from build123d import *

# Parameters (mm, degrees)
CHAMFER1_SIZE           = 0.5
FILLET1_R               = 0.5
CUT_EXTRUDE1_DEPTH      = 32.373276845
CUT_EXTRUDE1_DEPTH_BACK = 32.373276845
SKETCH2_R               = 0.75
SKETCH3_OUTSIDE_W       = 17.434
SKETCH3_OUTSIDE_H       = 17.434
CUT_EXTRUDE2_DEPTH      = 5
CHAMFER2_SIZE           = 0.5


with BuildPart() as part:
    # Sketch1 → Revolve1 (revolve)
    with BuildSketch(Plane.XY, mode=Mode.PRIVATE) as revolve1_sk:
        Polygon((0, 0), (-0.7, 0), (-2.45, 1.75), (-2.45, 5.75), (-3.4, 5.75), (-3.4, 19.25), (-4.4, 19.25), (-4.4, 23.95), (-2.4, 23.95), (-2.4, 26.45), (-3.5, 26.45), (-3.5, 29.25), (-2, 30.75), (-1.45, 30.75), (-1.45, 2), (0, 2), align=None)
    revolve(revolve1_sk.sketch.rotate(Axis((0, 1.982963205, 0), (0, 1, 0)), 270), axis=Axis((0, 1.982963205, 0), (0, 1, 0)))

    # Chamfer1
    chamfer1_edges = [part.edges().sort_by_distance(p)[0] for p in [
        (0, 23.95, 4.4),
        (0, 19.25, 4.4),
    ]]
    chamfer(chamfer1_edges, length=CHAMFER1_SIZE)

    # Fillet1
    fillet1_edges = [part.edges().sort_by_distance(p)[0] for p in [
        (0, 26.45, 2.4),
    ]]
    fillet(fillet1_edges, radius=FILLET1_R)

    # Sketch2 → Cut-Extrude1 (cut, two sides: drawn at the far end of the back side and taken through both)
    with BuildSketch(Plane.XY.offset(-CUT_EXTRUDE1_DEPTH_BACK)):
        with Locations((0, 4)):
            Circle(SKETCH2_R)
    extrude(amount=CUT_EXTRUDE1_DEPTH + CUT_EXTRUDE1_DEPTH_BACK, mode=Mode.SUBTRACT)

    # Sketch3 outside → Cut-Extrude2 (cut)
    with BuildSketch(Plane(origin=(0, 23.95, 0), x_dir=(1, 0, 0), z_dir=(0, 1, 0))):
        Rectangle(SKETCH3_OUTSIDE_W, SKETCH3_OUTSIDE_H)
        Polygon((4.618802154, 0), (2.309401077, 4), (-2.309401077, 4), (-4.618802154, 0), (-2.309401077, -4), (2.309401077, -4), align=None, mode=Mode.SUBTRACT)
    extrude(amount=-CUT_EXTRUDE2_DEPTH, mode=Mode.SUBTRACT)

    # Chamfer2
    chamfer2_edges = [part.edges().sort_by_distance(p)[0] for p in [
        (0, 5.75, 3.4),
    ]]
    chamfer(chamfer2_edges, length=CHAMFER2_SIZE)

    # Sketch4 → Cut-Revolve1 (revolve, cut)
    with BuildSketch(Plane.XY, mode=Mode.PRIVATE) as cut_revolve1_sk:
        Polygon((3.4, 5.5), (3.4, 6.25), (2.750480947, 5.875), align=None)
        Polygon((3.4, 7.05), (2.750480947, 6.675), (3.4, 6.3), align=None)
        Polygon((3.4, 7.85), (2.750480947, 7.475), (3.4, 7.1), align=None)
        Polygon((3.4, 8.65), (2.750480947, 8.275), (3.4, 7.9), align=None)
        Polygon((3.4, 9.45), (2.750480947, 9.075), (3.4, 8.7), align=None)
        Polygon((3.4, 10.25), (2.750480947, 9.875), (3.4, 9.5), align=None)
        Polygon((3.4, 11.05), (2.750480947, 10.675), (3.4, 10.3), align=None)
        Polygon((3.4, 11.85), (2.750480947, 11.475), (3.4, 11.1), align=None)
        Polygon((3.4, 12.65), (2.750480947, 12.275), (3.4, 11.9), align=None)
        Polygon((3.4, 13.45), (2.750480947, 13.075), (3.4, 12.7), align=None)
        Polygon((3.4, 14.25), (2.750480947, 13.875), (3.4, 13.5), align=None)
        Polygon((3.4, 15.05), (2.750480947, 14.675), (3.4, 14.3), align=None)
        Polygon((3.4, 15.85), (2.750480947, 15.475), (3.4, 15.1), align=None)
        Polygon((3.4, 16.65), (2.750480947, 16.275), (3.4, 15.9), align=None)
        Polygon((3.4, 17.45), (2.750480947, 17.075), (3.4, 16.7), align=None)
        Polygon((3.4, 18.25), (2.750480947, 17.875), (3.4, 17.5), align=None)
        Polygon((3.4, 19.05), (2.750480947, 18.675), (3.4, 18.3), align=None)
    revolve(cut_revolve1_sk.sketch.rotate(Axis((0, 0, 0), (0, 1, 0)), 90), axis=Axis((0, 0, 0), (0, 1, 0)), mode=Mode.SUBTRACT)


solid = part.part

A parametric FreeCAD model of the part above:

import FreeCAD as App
import Part
import Sketcher
Q = App.Units.Quantity


def edges_at(feature, points):
    """Names of the edges that pass closest to the given points."""
    edges = feature.Shape.Edges
    near = lambda p: min(range(len(edges)), key=lambda i: edges[i].distToShape(Part.Vertex(*p))[0])
    return sorted({f"Edge{near(p) + 1}" for p in points})


def add_polygon(sketch, points):
    """Adds a closed chain of lines whose ends are joined by coincident constraints."""
    first, n = sketch.GeometryCount, len(points)
    for a, b in zip(points, points[1:] + points[:1]):
        sketch.addGeometry(Part.LineSegment(App.Vector(*a, 0), App.Vector(*b, 0)), False)
    for i in range(n):
        sketch.addConstraint(Sketcher.Constraint("Coincident", first + i, 2, first + (i + 1) % n, 1))

doc = App.newDocument("Part")
body = doc.addObject("PartDesign::Body", "Body")

# Sketch on XY plane
sketch1 = body.newObject("Sketcher::SketchObject", "Sketch")
sketch1.AttachmentSupport = (doc.getObject("XY_Plane"), [""])
sketch1.MapMode = "FlatFace"
add_polygon(sketch1, [(-0.7, 0), (0, 0), (0, 2), (-1.4, 2), (-1.4, 30.8), (-2, 30.8), (-3.5, 29.2), (-3.5, 26.4), (-2.4, 26.4), (-2.4, 23.9), (-4.4, 23.9), (-4.4, 19.2), (-3.4, 19.2), (-3.4, 5.8), (-2.5, 5.8), (-2.5, 1.8)])  # lines 0-15
sketch1.addConstraint(Sketcher.Constraint("Horizontal", 0))
sketch1.addConstraint(Sketcher.Constraint("Vertical", 1))
sketch1.addConstraint(Sketcher.Constraint("Horizontal", 2))
sketch1.addConstraint(Sketcher.Constraint("Vertical", 3))
sketch1.addConstraint(Sketcher.Constraint("Horizontal", 4))
sketch1.addConstraint(Sketcher.Constraint("Vertical", 6))
sketch1.addConstraint(Sketcher.Constraint("Horizontal", 7))
sketch1.addConstraint(Sketcher.Constraint("Vertical", 8))
sketch1.addConstraint(Sketcher.Constraint("Horizontal", 9))
sketch1.addConstraint(Sketcher.Constraint("Vertical", 10))
sketch1.addConstraint(Sketcher.Constraint("Horizontal", 11))
sketch1.addConstraint(Sketcher.Constraint("Vertical", 12))
sketch1.addConstraint(Sketcher.Constraint("Horizontal", 13))
sketch1.addConstraint(Sketcher.Constraint("Vertical", 14))
sketch1.addConstraint(Sketcher.Constraint("Coincident", 0, 2, -1, 1))
sketch1.addConstraint(Sketcher.Constraint("Perpendicular", 5, 15))
sketch1.addConstraint(Sketcher.Constraint("Equal", 9, 1))
sketch1.addConstraint(Sketcher.Constraint("DistanceX", 9, 2, 9, 1, Q("2 mm")))
sketch1.addConstraint(Sketcher.Constraint("DistanceX", 11, 1, 11, 2, Q("1 mm")))
sketch1.addConstraint(Sketcher.Constraint("DistanceY", 14, 2, 14, 1, Q("4 mm")))
sketch1.addConstraint(Sketcher.Constraint("Angle", 5, Q("-135 deg")))
sketch1.addConstraint(Sketcher.Constraint("DistanceX", 0, 1, 0, 2, Q("0.7 mm")))
sketch1.addConstraint(Sketcher.Constraint("DistanceX", 7, 1, 7, 2, Q("1.1 mm")))
sketch1.addConstraint(Sketcher.Constraint("DistanceY", 6, 2, 6, 1, Q("2.8 mm")))
sketch1.addConstraint(Sketcher.Constraint("DistanceY", 8, 2, 8, 1, Q("2.5 mm")))
sketch1.addConstraint(Sketcher.Constraint("DistanceY", 10, 2, 10, 1, Q("4.7 mm")))
sketch1.addConstraint(Sketcher.Constraint("DistanceY", 12, 2, 12, 1, Q("13.5 mm")))
sketch1.addConstraint(Sketcher.Constraint("DistanceX", 4, 2, -1, 1, Q("2 mm")))
sketch1.addConstraint(Sketcher.Constraint("DistanceX", 13, 2, 2, 2, Q("1 mm")))
sketch1.addConstraint(Sketcher.Constraint("DistanceX", 2, 2, 2, 1, Q("1.45 mm")))
sketch1.addConstraint(Sketcher.Constraint("DistanceX", 13, 1, 13, 2, Q("0.95 mm")))
revolution = body.newObject("PartDesign::Revolution", "Revolution")
revolution.Profile = sketch1
revolution.ReferenceAxis = (sketch1, ["V_Axis"])
revolution.Angle = 360
doc.recompute()

chamfer = body.newObject("PartDesign::Chamfer", "Chamfer")
chamfer.Base = (revolution, edges_at(revolution, [(0, 23.95, 4.4), (0, 19.25, 4.4)]))
chamfer.Size = 0.5
doc.recompute()

fillet = body.newObject("PartDesign::Fillet", "Fillet")
fillet.Base = (chamfer, edges_at(chamfer, [(0, 26.45, 2.4)]))
fillet.Radius = 0.5

# Sketch on XY plane
sketch2 = body.newObject("Sketcher::SketchObject", "Sketch001")
sketch2.AttachmentSupport = (doc.getObject("XY_Plane"), [""])
sketch2.MapMode = "FlatFace"
sketch2.addGeometry(Part.Circle(App.Vector(0, 4, 0), App.Vector(0, 0, 1), 0.8), False)
sketch2.addConstraint(Sketcher.Constraint("PointOnObject", 0, 3, -2))
sketch2.addConstraint(Sketcher.Constraint("Diameter", 0, Q("1.5 mm")))
sketch2.addConstraint(Sketcher.Constraint("DistanceY", -1, 1, 0, 3, Q("4 mm")))
pocket1 = body.newObject("PartDesign::Pocket", "Pocket")
pocket1.Profile = sketch2
pocket1.Type = "ThroughAll"
pocket1.Midplane = True

# Sketch on XZ plane
sketch3 = body.newObject("Sketcher::SketchObject", "Sketch002")
sketch3.AttachmentSupport = (doc.getObject("XZ_Plane"), [""])
sketch3.MapMode = "FlatFace"
sketch3.AttachmentOffset = App.Placement(App.Vector(0, 0, -23.95), App.Rotation())
add_polygon(sketch3, [(-8.7, -8.7), (-8.7, 8.7), (8.7, 8.7), (8.7, -8.7)])  # lines 0-3
add_polygon(sketch3, [(2.3, -4), (4.6, 0), (2.3, 4), (-2.3, 4), (-4.6, 0), (-2.3, -4)])  # lines 4-9
sketch3.addConstraint(Sketcher.Constraint("Vertical", 0))
sketch3.addConstraint(Sketcher.Constraint("Horizontal", 1))
sketch3.addConstraint(Sketcher.Constraint("Vertical", 2))
sketch3.addConstraint(Sketcher.Constraint("Horizontal", 3))
sketch3.addConstraint(Sketcher.Constraint("Horizontal", 6))
sketch3.addConstraint(Sketcher.Constraint("Horizontal", 9))
sketch3.addConstraint(Sketcher.Constraint("Symmetric", 0, 2, 2, 2, -1, 1))
sketch3.addConstraint(Sketcher.Constraint("Symmetric", 4, 2, 7, 2, -1, 1))
sketch3.addConstraint(Sketcher.Constraint("Symmetric", 5, 2, 8, 2, -1, 1))
sketch3.addConstraint(Sketcher.Constraint("PointOnObject", 4, 2, -1))
sketch3.addConstraint(Sketcher.Constraint("Parallel", 4, 7))
sketch3.addConstraint(Sketcher.Constraint("Vertical", 6, 2, 8, 2))
sketch3.addConstraint(Sketcher.Constraint("Equal", 3, 0))
sketch3.addConstraint(Sketcher.Constraint("Angle", 4, Q("60 deg")))
sketch3.addConstraint(Sketcher.Constraint("DistanceY", -1, 1, 5, 2, Q("4 mm")))
sketch3.addConstraint(Sketcher.Constraint("DistanceX", 1, 1, 1, 2, Q("17.434 mm")))
sketch3.addConstraint(Sketcher.Constraint("DistanceX", -1, 1, 5, 2, Q("2.309401 mm")))
pocket2 = body.newObject("PartDesign::Pocket", "Pocket001")
pocket2.Profile = sketch3
pocket2.Length = 5
pocket2.Reversed = True
doc.recompute()

chamfer2 = body.newObject("PartDesign::Chamfer", "Chamfer001")
chamfer2.Base = (pocket2, edges_at(pocket2, [(0, 5.75, 3.4)]))
chamfer2.Size = 0.5

# Sketch on XY plane
sketch4 = body.newObject("Sketcher::SketchObject", "Sketch003")
sketch4.AttachmentSupport = (doc.getObject("XY_Plane"), [""])
sketch4.MapMode = "FlatFace"
add_polygon(sketch4, [(3.4, 5.5), (3.4, 6.2), (2.8, 5.9)])  # lines 0-2
add_polygon(sketch4, [(3.4, 7), (2.8, 6.7), (3.4, 6.3)])  # lines 3-5
add_polygon(sketch4, [(3.4, 7.8), (2.8, 7.5), (3.4, 7.1)])  # lines 6-8
add_polygon(sketch4, [(3.4, 8.7), (2.8, 8.3), (3.4, 7.9)])  # lines 9-11
add_polygon(sketch4, [(3.4, 9.4), (2.8, 9.1), (3.4, 8.7)])  # lines 12-14
add_polygon(sketch4, [(3.4, 10.2), (2.8, 9.9), (3.4, 9.5)])  # lines 15-17
add_polygon(sketch4, [(3.4, 11.1), (2.8, 10.7), (3.4, 10.3)])  # lines 18-20
add_polygon(sketch4, [(3.4, 11.8), (2.8, 11.5), (3.4, 11.1)])  # lines 21-23
add_polygon(sketch4, [(3.4, 12.7), (2.8, 12.3), (3.4, 11.9)])  # lines 24-26
add_polygon(sketch4, [(3.4, 13.4), (2.8, 13.1), (3.4, 12.7)])  # lines 27-29
add_polygon(sketch4, [(3.4, 14.2), (2.8, 13.9), (3.4, 13.5)])  # lines 30-32
add_polygon(sketch4, [(3.4, 15.1), (2.8, 14.7), (3.4, 14.3)])  # lines 33-35
add_polygon(sketch4, [(3.4, 15.8), (2.8, 15.5), (3.4, 15.1)])  # lines 36-38
add_polygon(sketch4, [(3.4, 16.6), (2.8, 16.3), (3.4, 15.9)])  # lines 39-41
add_polygon(sketch4, [(3.4, 17.4), (2.8, 17.1), (3.4, 16.7)])  # lines 42-44
add_polygon(sketch4, [(3.4, 18.2), (2.8, 17.9), (3.4, 17.5)])  # lines 45-47
add_polygon(sketch4, [(3.4, 19.1), (2.8, 18.7), (3.4, 18.3)])  # lines 48-50
sketch4.addConstraint(Sketcher.Constraint("Vertical", 0))
sketch4.addConstraint(Sketcher.Constraint("Vertical", 5))
sketch4.addConstraint(Sketcher.Constraint("Vertical", 8))
sketch4.addConstraint(Sketcher.Constraint("Vertical", 11))
sketch4.addConstraint(Sketcher.Constraint("Vertical", 14))
sketch4.addConstraint(Sketcher.Constraint("Vertical", 17))
sketch4.addConstraint(Sketcher.Constraint("Vertical", 20))
sketch4.addConstraint(Sketcher.Constraint("Vertical", 23))
sketch4.addConstraint(Sketcher.Constraint("Vertical", 26))
sketch4.addConstraint(Sketcher.Constraint("Vertical", 29))
sketch4.addConstraint(Sketcher.Constraint("Vertical", 32))
sketch4.addConstraint(Sketcher.Constraint("Vertical", 35))
sketch4.addConstraint(Sketcher.Constraint("Vertical", 38))
sketch4.addConstraint(Sketcher.Constraint("Vertical", 41))
sketch4.addConstraint(Sketcher.Constraint("Vertical", 44))
sketch4.addConstraint(Sketcher.Constraint("Vertical", 47))
sketch4.addConstraint(Sketcher.Constraint("Vertical", 50))
sketch4.addConstraint(Sketcher.Constraint("Parallel", 1, 3))
sketch4.addConstraint(Sketcher.Constraint("Parallel", 2, 4))
sketch4.addConstraint(Sketcher.Constraint("Parallel", 3, 6))
sketch4.addConstraint(Sketcher.Constraint("Parallel", 4, 7))
sketch4.addConstraint(Sketcher.Constraint("Parallel", 6, 9))
sketch4.addConstraint(Sketcher.Constraint("Parallel", 7, 10))
sketch4.addConstraint(Sketcher.Constraint("Parallel", 9, 12))
sketch4.addConstraint(Sketcher.Constraint("Parallel", 10, 13))
sketch4.addConstraint(Sketcher.Constraint("Parallel", 12, 15))
sketch4.addConstraint(Sketcher.Constraint("Parallel", 13, 16))
sketch4.addConstraint(Sketcher.Constraint("Parallel", 15, 18))
sketch4.addConstraint(Sketcher.Constraint("Parallel", 16, 19))
sketch4.addConstraint(Sketcher.Constraint("Parallel", 18, 21))
sketch4.addConstraint(Sketcher.Constraint("Parallel", 19, 22))
sketch4.addConstraint(Sketcher.Constraint("Parallel", 21, 24))
sketch4.addConstraint(Sketcher.Constraint("Parallel", 22, 25))
sketch4.addConstraint(Sketcher.Constraint("Parallel", 24, 27))
sketch4.addConstraint(Sketcher.Constraint("Parallel", 25, 28))
sketch4.addConstraint(Sketcher.Constraint("Parallel", 27, 30))
sketch4.addConstraint(Sketcher.Constraint("Parallel", 28, 31))
sketch4.addConstraint(Sketcher.Constraint("Parallel", 30, 33))
sketch4.addConstraint(Sketcher.Constraint("Parallel", 31, 34))
sketch4.addConstraint(Sketcher.Constraint("Parallel", 33, 36))
sketch4.addConstraint(Sketcher.Constraint("Parallel", 34, 37))
sketch4.addConstraint(Sketcher.Constraint("Parallel", 36, 39))
sketch4.addConstraint(Sketcher.Constraint("Parallel", 37, 40))
sketch4.addConstraint(Sketcher.Constraint("Parallel", 39, 42))
sketch4.addConstraint(Sketcher.Constraint("Parallel", 40, 43))
sketch4.addConstraint(Sketcher.Constraint("Parallel", 42, 45))
sketch4.addConstraint(Sketcher.Constraint("Parallel", 43, 46))
sketch4.addConstraint(Sketcher.Constraint("Parallel", 45, 48))
sketch4.addConstraint(Sketcher.Constraint("Parallel", 46, 49))
sketch4.addConstraint(Sketcher.Constraint("Vertical", 1, 2, 3, 2))
sketch4.addConstraint(Sketcher.Constraint("Vertical", 2, 2, 4, 2))
sketch4.addConstraint(Sketcher.Constraint("Vertical", 3, 2, 6, 2))
sketch4.addConstraint(Sketcher.Constraint("Vertical", 5, 2, 7, 2))
sketch4.addConstraint(Sketcher.Constraint("Vertical", 6, 2, 9, 2))
sketch4.addConstraint(Sketcher.Constraint("Vertical", 8, 2, 10, 2))
sketch4.addConstraint(Sketcher.Constraint("Vertical", 9, 2, 12, 2))
sketch4.addConstraint(Sketcher.Constraint("Vertical", 11, 2, 13, 2))
sketch4.addConstraint(Sketcher.Constraint("Vertical", 12, 2, 15, 2))
sketch4.addConstraint(Sketcher.Constraint("Vertical", 14, 2, 16, 2))
sketch4.addConstraint(Sketcher.Constraint("Vertical", 15, 2, 18, 2))
sketch4.addConstraint(Sketcher.Constraint("Vertical", 17, 2, 19, 2))
sketch4.addConstraint(Sketcher.Constraint("Vertical", 18, 2, 21, 2))
sketch4.addConstraint(Sketcher.Constraint("Vertical", 20, 2, 22, 2))
sketch4.addConstraint(Sketcher.Constraint("Vertical", 21, 2, 24, 2))
sketch4.addConstraint(Sketcher.Constraint("Vertical", 23, 2, 25, 2))
sketch4.addConstraint(Sketcher.Constraint("Vertical", 24, 2, 27, 2))
sketch4.addConstraint(Sketcher.Constraint("Vertical", 26, 2, 28, 2))
sketch4.addConstraint(Sketcher.Constraint("Vertical", 27, 2, 30, 2))
sketch4.addConstraint(Sketcher.Constraint("Vertical", 29, 2, 31, 2))
sketch4.addConstraint(Sketcher.Constraint("Vertical", 30, 2, 33, 2))
sketch4.addConstraint(Sketcher.Constraint("Vertical", 32, 2, 34, 2))
sketch4.addConstraint(Sketcher.Constraint("Vertical", 33, 2, 36, 2))
sketch4.addConstraint(Sketcher.Constraint("Vertical", 35, 2, 37, 2))
sketch4.addConstraint(Sketcher.Constraint("Vertical", 36, 2, 39, 2))
sketch4.addConstraint(Sketcher.Constraint("Vertical", 38, 2, 40, 2))
sketch4.addConstraint(Sketcher.Constraint("Vertical", 39, 2, 42, 2))
sketch4.addConstraint(Sketcher.Constraint("Vertical", 41, 2, 43, 2))
sketch4.addConstraint(Sketcher.Constraint("Vertical", 42, 2, 45, 2))
sketch4.addConstraint(Sketcher.Constraint("Vertical", 44, 2, 46, 2))
sketch4.addConstraint(Sketcher.Constraint("Vertical", 45, 2, 48, 2))
sketch4.addConstraint(Sketcher.Constraint("Vertical", 47, 2, 49, 2))
sketch4.addConstraint(Sketcher.Constraint("Equal", 1, 2))
sketch4.addConstraint(Sketcher.Constraint("Angle", 1, Q("-150 deg")))
sketch4.addConstraint(Sketcher.Constraint("DistanceY", 0, 1, 0, 2, Q("0.75 mm")))
sketch4.addConstraint(Sketcher.Constraint("DistanceX", -1, 1, 0, 2, Q("3.4 mm")))
sketch4.addConstraint(Sketcher.Constraint("DistanceY", -1, 1, 2, 2, Q("5.5 mm")))
sketch4.addConstraint(Sketcher.Constraint("DistanceY", -1, 1, 4, 2, Q("6.3 mm")))
sketch4.addConstraint(Sketcher.Constraint("DistanceY", -1, 1, 7, 2, Q("7.1 mm")))
sketch4.addConstraint(Sketcher.Constraint("DistanceY", -1, 1, 10, 2, Q("7.9 mm")))
sketch4.addConstraint(Sketcher.Constraint("DistanceY", -1, 1, 13, 2, Q("8.7 mm")))
sketch4.addConstraint(Sketcher.Constraint("DistanceY", -1, 1, 16, 2, Q("9.5 mm")))
sketch4.addConstraint(Sketcher.Constraint("DistanceY", -1, 1, 19, 2, Q("10.3 mm")))
sketch4.addConstraint(Sketcher.Constraint("DistanceY", -1, 1, 22, 2, Q("11.1 mm")))
sketch4.addConstraint(Sketcher.Constraint("DistanceY", -1, 1, 25, 2, Q("11.9 mm")))
sketch4.addConstraint(Sketcher.Constraint("DistanceY", -1, 1, 28, 2, Q("12.7 mm")))
sketch4.addConstraint(Sketcher.Constraint("DistanceY", -1, 1, 31, 2, Q("13.5 mm")))
sketch4.addConstraint(Sketcher.Constraint("DistanceY", -1, 1, 34, 2, Q("14.3 mm")))
sketch4.addConstraint(Sketcher.Constraint("DistanceY", -1, 1, 37, 2, Q("15.1 mm")))
sketch4.addConstraint(Sketcher.Constraint("DistanceY", -1, 1, 40, 2, Q("15.9 mm")))
sketch4.addConstraint(Sketcher.Constraint("DistanceY", -1, 1, 43, 2, Q("16.7 mm")))
sketch4.addConstraint(Sketcher.Constraint("DistanceY", -1, 1, 46, 2, Q("17.5 mm")))
sketch4.addConstraint(Sketcher.Constraint("DistanceY", -1, 1, 49, 2, Q("18.3 mm")))
groove = body.newObject("PartDesign::Groove", "Groove")
groove.Profile = sketch4
groove.ReferenceAxis = (sketch4, ["V_Axis"])
groove.Angle = 360

doc.recompute()
